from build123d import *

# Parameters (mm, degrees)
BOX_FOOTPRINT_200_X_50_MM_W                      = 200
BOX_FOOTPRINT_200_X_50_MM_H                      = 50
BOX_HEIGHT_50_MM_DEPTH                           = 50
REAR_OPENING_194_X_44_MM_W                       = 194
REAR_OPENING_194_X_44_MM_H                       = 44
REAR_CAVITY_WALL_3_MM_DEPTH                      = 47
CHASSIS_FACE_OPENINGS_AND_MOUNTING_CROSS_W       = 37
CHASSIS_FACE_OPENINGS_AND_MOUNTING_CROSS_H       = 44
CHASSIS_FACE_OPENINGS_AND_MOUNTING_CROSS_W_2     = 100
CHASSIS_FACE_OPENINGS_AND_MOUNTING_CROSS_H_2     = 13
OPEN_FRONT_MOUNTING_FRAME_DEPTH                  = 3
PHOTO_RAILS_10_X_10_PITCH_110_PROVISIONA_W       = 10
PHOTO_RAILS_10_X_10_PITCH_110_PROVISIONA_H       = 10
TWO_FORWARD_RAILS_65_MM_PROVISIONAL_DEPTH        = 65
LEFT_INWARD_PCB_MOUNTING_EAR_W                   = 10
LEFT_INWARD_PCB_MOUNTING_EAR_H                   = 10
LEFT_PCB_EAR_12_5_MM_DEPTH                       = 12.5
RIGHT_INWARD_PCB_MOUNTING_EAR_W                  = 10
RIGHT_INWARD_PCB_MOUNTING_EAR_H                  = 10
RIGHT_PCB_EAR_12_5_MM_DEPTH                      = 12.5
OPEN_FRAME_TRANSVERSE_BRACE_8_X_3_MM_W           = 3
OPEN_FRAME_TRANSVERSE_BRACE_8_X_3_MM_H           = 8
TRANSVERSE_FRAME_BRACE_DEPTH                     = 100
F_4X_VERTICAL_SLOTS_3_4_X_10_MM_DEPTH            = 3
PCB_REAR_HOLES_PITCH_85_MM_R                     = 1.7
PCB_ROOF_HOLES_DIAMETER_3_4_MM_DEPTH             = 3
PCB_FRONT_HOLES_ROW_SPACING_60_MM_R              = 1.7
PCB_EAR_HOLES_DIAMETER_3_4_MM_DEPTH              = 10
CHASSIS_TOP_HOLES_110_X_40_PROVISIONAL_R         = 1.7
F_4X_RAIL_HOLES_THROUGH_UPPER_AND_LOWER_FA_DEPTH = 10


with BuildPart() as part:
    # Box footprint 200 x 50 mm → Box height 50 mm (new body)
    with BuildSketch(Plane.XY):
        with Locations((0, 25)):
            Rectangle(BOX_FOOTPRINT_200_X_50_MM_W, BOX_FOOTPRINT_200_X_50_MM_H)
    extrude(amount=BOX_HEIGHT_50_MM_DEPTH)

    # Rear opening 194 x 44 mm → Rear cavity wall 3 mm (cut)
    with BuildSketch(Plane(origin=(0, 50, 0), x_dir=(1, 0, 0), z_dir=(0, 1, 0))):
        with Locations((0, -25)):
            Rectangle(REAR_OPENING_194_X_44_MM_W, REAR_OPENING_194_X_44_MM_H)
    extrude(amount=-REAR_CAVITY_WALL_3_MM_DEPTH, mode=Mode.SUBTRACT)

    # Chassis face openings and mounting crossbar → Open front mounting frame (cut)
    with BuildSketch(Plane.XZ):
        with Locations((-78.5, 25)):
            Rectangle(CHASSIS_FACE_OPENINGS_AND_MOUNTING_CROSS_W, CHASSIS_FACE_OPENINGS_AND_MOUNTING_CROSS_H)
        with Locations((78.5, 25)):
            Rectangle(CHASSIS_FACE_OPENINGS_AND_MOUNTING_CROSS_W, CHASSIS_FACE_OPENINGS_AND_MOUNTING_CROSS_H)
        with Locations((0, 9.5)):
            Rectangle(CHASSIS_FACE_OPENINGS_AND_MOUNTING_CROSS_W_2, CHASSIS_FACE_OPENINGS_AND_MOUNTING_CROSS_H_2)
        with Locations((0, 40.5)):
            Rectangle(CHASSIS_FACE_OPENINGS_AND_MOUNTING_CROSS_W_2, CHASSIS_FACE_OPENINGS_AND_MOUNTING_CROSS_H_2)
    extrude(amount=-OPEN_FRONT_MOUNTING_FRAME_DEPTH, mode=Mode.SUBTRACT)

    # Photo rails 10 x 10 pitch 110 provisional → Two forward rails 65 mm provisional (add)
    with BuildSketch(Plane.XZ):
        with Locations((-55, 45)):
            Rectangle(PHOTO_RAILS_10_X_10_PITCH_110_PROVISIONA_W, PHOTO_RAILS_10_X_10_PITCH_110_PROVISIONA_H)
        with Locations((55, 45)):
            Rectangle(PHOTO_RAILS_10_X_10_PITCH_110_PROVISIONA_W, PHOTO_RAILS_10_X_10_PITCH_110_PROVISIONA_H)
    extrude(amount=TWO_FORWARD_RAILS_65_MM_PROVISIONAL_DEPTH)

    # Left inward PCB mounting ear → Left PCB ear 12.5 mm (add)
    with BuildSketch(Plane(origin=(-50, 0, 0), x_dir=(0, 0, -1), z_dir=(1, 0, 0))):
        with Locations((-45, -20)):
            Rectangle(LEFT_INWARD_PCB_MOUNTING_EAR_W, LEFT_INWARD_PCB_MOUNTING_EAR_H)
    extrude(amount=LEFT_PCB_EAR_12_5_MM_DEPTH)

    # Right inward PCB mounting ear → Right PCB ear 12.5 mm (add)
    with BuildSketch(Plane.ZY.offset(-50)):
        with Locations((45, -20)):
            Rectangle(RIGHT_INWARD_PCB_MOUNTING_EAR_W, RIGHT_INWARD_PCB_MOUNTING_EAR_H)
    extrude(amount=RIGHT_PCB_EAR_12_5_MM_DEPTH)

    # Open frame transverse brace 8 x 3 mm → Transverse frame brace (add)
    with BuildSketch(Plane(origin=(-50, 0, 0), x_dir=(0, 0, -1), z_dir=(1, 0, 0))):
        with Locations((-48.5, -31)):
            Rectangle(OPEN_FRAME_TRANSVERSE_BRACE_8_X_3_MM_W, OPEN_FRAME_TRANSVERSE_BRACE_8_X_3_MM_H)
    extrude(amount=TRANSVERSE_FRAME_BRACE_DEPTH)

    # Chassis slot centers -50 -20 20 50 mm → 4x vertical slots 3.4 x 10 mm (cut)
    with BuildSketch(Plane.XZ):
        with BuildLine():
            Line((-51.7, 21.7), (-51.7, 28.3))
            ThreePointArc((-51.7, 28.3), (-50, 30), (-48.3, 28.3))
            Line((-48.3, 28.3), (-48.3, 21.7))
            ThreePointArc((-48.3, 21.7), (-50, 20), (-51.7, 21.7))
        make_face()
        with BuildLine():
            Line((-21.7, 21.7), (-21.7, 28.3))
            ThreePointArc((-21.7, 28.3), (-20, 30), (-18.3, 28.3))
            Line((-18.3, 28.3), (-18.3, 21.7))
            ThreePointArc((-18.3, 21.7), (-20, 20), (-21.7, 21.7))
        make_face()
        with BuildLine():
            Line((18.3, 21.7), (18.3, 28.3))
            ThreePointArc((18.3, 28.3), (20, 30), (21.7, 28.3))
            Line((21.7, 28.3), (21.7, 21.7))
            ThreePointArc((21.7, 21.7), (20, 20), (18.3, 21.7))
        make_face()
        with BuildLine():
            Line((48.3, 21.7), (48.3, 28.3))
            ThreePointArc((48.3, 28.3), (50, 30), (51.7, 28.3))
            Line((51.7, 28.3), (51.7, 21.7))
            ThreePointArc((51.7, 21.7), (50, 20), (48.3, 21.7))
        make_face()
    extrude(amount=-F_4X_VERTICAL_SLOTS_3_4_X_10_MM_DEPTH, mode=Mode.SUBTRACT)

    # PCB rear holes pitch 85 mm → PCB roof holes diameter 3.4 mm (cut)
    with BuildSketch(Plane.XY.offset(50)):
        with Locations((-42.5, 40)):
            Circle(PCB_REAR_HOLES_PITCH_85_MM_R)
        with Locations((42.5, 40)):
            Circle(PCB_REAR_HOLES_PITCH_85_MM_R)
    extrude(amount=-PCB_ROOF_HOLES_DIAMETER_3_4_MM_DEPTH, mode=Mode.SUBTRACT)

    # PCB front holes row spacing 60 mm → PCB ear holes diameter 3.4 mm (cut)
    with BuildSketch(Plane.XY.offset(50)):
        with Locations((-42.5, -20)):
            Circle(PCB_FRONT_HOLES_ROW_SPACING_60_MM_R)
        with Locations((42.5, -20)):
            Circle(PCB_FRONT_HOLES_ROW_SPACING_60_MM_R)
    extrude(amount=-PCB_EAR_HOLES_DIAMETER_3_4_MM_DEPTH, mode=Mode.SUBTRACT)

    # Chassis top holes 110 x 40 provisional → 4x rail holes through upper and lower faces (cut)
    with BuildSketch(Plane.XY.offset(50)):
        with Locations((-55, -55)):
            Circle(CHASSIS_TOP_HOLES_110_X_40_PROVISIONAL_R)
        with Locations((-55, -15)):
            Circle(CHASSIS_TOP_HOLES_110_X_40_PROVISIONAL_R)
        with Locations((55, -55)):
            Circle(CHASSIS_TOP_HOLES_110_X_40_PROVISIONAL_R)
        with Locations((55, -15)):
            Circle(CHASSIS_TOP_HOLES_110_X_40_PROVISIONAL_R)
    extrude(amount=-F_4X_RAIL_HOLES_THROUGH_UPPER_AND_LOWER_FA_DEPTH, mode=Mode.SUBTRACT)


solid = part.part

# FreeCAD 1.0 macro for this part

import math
import FreeCAD as App
import Part
import Sketcher

V = App.Vector
Q = App.Units.Quantity


def add_polygon(sketch, points):
    """Adds a closed chain of lines whose ends are joined by coincident constraints."""
    first, n = sketch.GeometryCount, len(points)
    for a, b in zip(points, points[1:] + points[:1]):
        sketch.addGeometry(Part.LineSegment(App.Vector(*a, 0), App.Vector(*b, 0)), False)
    for i in range(n):
        sketch.addConstraint(Sketcher.Constraint("Coincident", first + i, 2, first + (i + 1) % n, 1))

doc = App.newDocument("Part")
body = doc.addObject("PartDesign::Body", "Body")

sketch1 = body.newObject("Sketcher::SketchObject", "Sketch")
sketch1.AttachmentSupport = (doc.getObject("XY_Plane"), [""])
sketch1.MapMode = "FlatFace"
add_polygon(sketch1, [(-100, 50), (-100, 0), (100, 0), (100, 50)])
sketch1.addConstraint(Sketcher.Constraint("Vertical", 0))
sketch1.addConstraint(Sketcher.Constraint("Horizontal", 1))
sketch1.addConstraint(Sketcher.Constraint("Vertical", 2))
sketch1.addConstraint(Sketcher.Constraint("Horizontal", 3))
sketch1.addConstraint(Sketcher.Constraint("Symmetric", 0, 2, 1, 2, -1, 1))
sketch1.addConstraint(Sketcher.Constraint("DistanceX", 1, 1, 1, 2, Q("200 mm")))
sketch1.addConstraint(Sketcher.Constraint("DistanceY", 0, 2, 0, 1, Q("50 mm")))
pad1 = body.newObject("PartDesign::Pad", "Pad")
pad1.Profile = sketch1
pad1.Length = 50

sketch2 = body.newObject("Sketcher::SketchObject", "Sketch001")
sketch2.AttachmentSupport = (doc.getObject("XZ_Plane"), [""])
sketch2.MapMode = "FlatFace"
sketch2.AttachmentOffset = App.Placement(V(0, 0, -50), App.Rotation())
add_polygon(sketch2, [(-97, 3), (-97, 47), (97, 47), (97, 3)])
sketch2.addConstraint(Sketcher.Constraint("Vertical", 0))
sketch2.addConstraint(Sketcher.Constraint("Horizontal", 1))
sketch2.addConstraint(Sketcher.Constraint("Vertical", 2))
sketch2.addConstraint(Sketcher.Constraint("Horizontal", 3))
sketch2.addConstraint(Sketcher.Constraint("DistanceX", 1, 1, 1, 2, Q("194 mm")))
sketch2.addConstraint(Sketcher.Constraint("DistanceY", 0, 1, 0, 2, Q("44 mm")))
sketch2.addConstraint(Sketcher.Constraint("DistanceX", 0, 2, -1, 1, Q("97 mm")))
sketch2.addConstraint(Sketcher.Constraint("DistanceY", -1, 1, 0, 2, Q("47 mm")))
pocket1 = body.newObject("PartDesign::Pocket", "Pocket")
pocket1.Profile = sketch2
pocket1.Length = 47
pocket1.Reversed = True

sketch3 = body.newObject("Sketcher::SketchObject", "Sketch002")
sketch3.AttachmentSupport = (doc.getObject("XZ_Plane"), [""])
sketch3.MapMode = "FlatFace"
add_polygon(sketch3, [(-97, 47), (-97, 3), (-60, 3), (-60, 47)])
add_polygon(sketch3, [(60, 47), (60, 3), (97, 3), (97, 47)])
add_polygon(sketch3, [(-50, 16), (-50, 3), (50, 3), (50, 16)])
add_polygon(sketch3, [(-50, 47), (-50, 34), (50, 34), (50, 47)])
sketch3.addConstraint(Sketcher.Constraint("Vertical", 0))
sketch3.addConstraint(Sketcher.Constraint("Horizontal", 1))
sketch3.addConstraint(Sketcher.Constraint("Vertical", 2))
sketch3.addConstraint(Sketcher.Constraint("Horizontal", 3))
sketch3.addConstraint(Sketcher.Constraint("Vertical", 4))
sketch3.addConstraint(Sketcher.Constraint("Horizontal", 5))
sketch3.addConstraint(Sketcher.Constraint("Vertical", 6))
sketch3.addConstraint(Sketcher.Constraint("Horizontal", 7))
sketch3.addConstraint(Sketcher.Constraint("Vertical", 8))
sketch3.addConstraint(Sketcher.Constraint("Horizontal", 9))
sketch3.addConstraint(Sketcher.Constraint("Vertical", 10))
sketch3.addConstraint(Sketcher.Constraint("Horizontal", 11))
sketch3.addConstraint(Sketcher.Constraint("Vertical", 12))
sketch3.addConstraint(Sketcher.Constraint("Horizontal", 13))
sketch3.addConstraint(Sketcher.Constraint("Vertical", 14))
sketch3.addConstraint(Sketcher.Constraint("Horizontal", 15))
sketch3.addConstraint(Sketcher.Constraint("Symmetric", 1, 2, 4, 2, -2))
sketch3.addConstraint(Sketcher.Constraint("Symmetric", 3, 2, 6, 2, -2))
sketch3.addConstraint(Sketcher.Constraint("Horizontal", 5, 2, 8, 2))
sketch3.addConstraint(Sketcher.Constraint("Horizontal", 7, 2, 14, 2))
sketch3.addConstraint(Sketcher.Constraint("Vertical", 11, 2, 12, 2))
sketch3.addConstraint(Sketcher.Constraint("Vertical", 10, 2, 13, 2))
sketch3.addConstraint(Sketcher.Constraint("Equal", 10, 12))
sketch3.addConstraint(Sketcher.Constraint("DistanceX", 1, 1, 1, 2, Q("37 mm")))
sketch3.addConstraint(Sketcher.Constraint("DistanceX", 9, 1, 9, 2, Q("100 mm")))
sketch3.addConstraint(Sketcher.Constraint("DistanceY", 0, 2, 0, 1, Q("44 mm")))
sketch3.addConstraint(Sketcher.Constraint("DistanceY", 8, 2, 8, 1, Q("13 mm")))
sketch3.addConstraint(Sketcher.Constraint("DistanceX", 0, 2, -1, 1, Q("97 mm")))
sketch3.addConstraint(Sketcher.Constraint("DistanceY", -1, 1, 0, 2, Q("3 mm")))
sketch3.addConstraint(Sketcher.Constraint("DistanceX", 8, 2, -1, 1, Q("50 mm")))
pocket2 = body.newObject("PartDesign::Pocket", "Pocket001")
pocket2.Profile = sketch3
pocket2.Length = 3

sketch4 = body.newObject("Sketcher::SketchObject", "Sketch003")
sketch4.AttachmentSupport = (doc.getObject("XZ_Plane"), [""])
sketch4.MapMode = "FlatFace"
add_polygon(sketch4, [(-60, 50), (-60, 40), (-50, 40), (-50, 50)])
add_polygon(sketch4, [(50, 50), (50, 40), (60, 40), (60, 50)])
sketch4.addConstraint(Sketcher.Constraint("Vertical", 0))
sketch4.addConstraint(Sketcher.Constraint("Horizontal", 1))
sketch4.addConstraint(Sketcher.Constraint("Vertical", 2))
sketch4.addConstraint(Sketcher.Constraint("Horizontal", 3))
sketch4.addConstraint(Sketcher.Constraint("Vertical", 4))
sketch4.addConstraint(Sketcher.Constraint("Horizontal", 5))
sketch4.addConstraint(Sketcher.Constraint("Vertical", 6))
sketch4.addConstraint(Sketcher.Constraint("Horizontal", 7))
sketch4.addConstraint(Sketcher.Constraint("Symmetric", 1, 2, 4, 2, -2))
sketch4.addConstraint(Sketcher.Constraint("Symmetric", 3, 2, 6, 2, -2))
sketch4.addConstraint(Sketcher.Constraint("Equal", 7, 0))
sketch4.addConstraint(Sketcher.Constraint("DistanceX", 1, 1, 1, 2, Q("10 mm")))
sketch4.addConstraint(Sketcher.Constraint("DistanceX", 0, 2, -1, 1, Q("60 mm")))
sketch4.addConstraint(Sketcher.Constraint("DistanceY", -1, 1, 0, 2, Q("40 mm")))
pad2 = body.newObject("PartDesign::Pad", "Pad001")
pad2.Profile = sketch4
pad2.Length = 65

sketch5 = body.newObject("Sketcher::SketchObject", "Sketch004")
sketch5.AttachmentSupport = (doc.getObject("YZ_Plane"), [""])
sketch5.MapMode = "FlatFace"
sketch5.AttachmentOffset = App.Placement(V(0, 0, -50), App.Rotation())
add_polygon(sketch5, [(-15, 50), (-25, 50), (-25, 40), (-15, 40)])
sketch5.addConstraint(Sketcher.Constraint("Horizontal", 0))
sketch5.addConstraint(Sketcher.Constraint("Vertical", 1))
sketch5.addConstraint(Sketcher.Constraint("Horizontal", 2))
sketch5.addConstraint(Sketcher.Constraint("Vertical", 3))
sketch5.addConstraint(Sketcher.Constraint("Equal", 2, 1))
sketch5.addConstraint(Sketcher.Constraint("DistanceX", 0, 2, 0, 1, Q("10 mm")))
sketch5.addConstraint(Sketcher.Constraint("DistanceX", 0, 2, -1, 1, Q("25 mm")))
sketch5.addConstraint(Sketcher.Constraint("DistanceY", -1, 1, 0, 2, Q("50 mm")))
pad3 = body.newObject("PartDesign::Pad", "Pad002")
pad3.Profile = sketch5
pad3.Length = 12.5

sketch6 = body.newObject("Sketcher::SketchObject", "Sketch005")
sketch6.AttachmentSupport = (doc.getObject("YZ_Plane"), [""])
sketch6.MapMode = "FlatFace"
sketch6.AttachmentOffset = App.Placement(V(0, 0, 50), App.Rotation())
add_polygon(sketch6, [(-15, 40), (-25, 40), (-25, 50), (-15, 50)])
sketch6.addConstraint(Sketcher.Constraint("Horizontal", 0))
sketch6.addConstraint(Sketcher.Constraint("Vertical", 1))
sketch6.addConstraint(Sketcher.Constraint("Horizontal", 2))
sketch6.addConstraint(Sketcher.Constraint("Vertical", 3))
sketch6.addConstraint(Sketcher.Constraint("Equal", 2, 1))
sketch6.addConstraint(Sketcher.Constraint("DistanceX", 0, 2, 0, 1, Q("10 mm")))
sketch6.addConstraint(Sketcher.Constraint("DistanceX", 0, 2, -1, 1, Q("25 mm")))
sketch6.addConstraint(Sketcher.Constraint("DistanceY", -1, 1, 0, 2, Q("40 mm")))
pad4 = body.newObject("PartDesign::Pad", "Pad003")
pad4.Profile = sketch6
pad4.Length = 12.5
pad4.Reversed = True

sketch7 = body.newObject("Sketcher::SketchObject", "Sketch006")
sketch7.AttachmentSupport = (doc.getObject("YZ_Plane"), [""])
sketch7.MapMode = "FlatFace"
sketch7.AttachmentOffset = App.Placement(V(0, 0, -50), App.Rotation())
add_polygon(sketch7, [(-27, 50), (-35, 50), (-35, 47), (-27, 47)])
sketch7.addConstraint(Sketcher.Constraint("Horizontal", 0))
sketch7.addConstraint(Sketcher.Constraint("Vertical", 1))
sketch7.addConstraint(Sketcher.Constraint("Horizontal", 2))
sketch7.addConstraint(Sketcher.Constraint("Vertical", 3))
sketch7.addConstraint(Sketcher.Constraint("DistanceX", 0, 2, 0, 1, Q("8 mm")))
sketch7.addConstraint(Sketcher.Constraint("DistanceY", 1, 2, 1, 1, Q("3 mm")))
sketch7.addConstraint(Sketcher.Constraint("DistanceX", 0, 2, -1, 1, Q("35 mm")))
sketch7.addConstraint(Sketcher.Constraint("DistanceY", -1, 1, 0, 2, Q("50 mm")))
pad5 = body.newObject("PartDesign::Pad", "Pad004")
pad5.Profile = sketch7
pad5.Length = 100

sketch8 = body.newObject("Sketcher::SketchObject", "Sketch007")
sketch8.AttachmentSupport = (doc.getObject("XZ_Plane"), [""])
sketch8.MapMode = "FlatFace"
sketch8.addGeometry(Part.LineSegment(V(-51.7, 28.3, 0), V(-51.7, 21.7, 0)), False)
sketch8.addGeometry(Part.ArcOfCircle(Part.Circle(V(-50, 21.7, 0), V(0, 0, 1), 1.7), math.radians(180), math.radians(360)), False)
sketch8.addGeometry(Part.LineSegment(V(-48.3, 21.7, 0), V(-48.3, 28.3, 0)), False)
sketch8.addGeometry(Part.ArcOfCircle(Part.Circle(V(-50, 28.3, 0), V(0, 0, 1), 1.7), math.radians(0), math.radians(180)), False)
sketch8.addGeometry(Part.LineSegment(V(-21.7, 28.3, 0), V(-21.7, 21.7, 0)), False)
sketch8.addGeometry(Part.ArcOfCircle(Part.Circle(V(-20, 21.7, 0), V(0, 0, 1), 1.7), math.radians(180), math.radians(360)), False)
sketch8.addGeometry(Part.LineSegment(V(-18.3, 21.7, 0), V(-18.3, 28.3, 0)), False)
sketch8.addGeometry(Part.ArcOfCircle(Part.Circle(V(-20, 28.3, 0), V(0, 0, 1), 1.7), math.radians(0), math.radians(180)), False)
sketch8.addGeometry(Part.LineSegment(V(18.3, 28.3, 0), V(18.3, 21.7, 0)), False)
sketch8.addGeometry(Part.ArcOfCircle(Part.Circle(V(20, 21.7, 0), V(0, 0, 1), 1.7), math.radians(180), math.radians(360)), False)
sketch8.addGeometry(Part.LineSegment(V(21.7, 21.7, 0), V(21.7, 28.3, 0)), False)
sketch8.addGeometry(Part.ArcOfCircle(Part.Circle(V(20, 28.3, 0), V(0, 0, 1), 1.7), math.radians(0), math.radians(180)), False)
sketch8.addGeometry(Part.LineSegment(V(48.3, 28.3, 0), V(48.3, 21.7, 0)), False)
sketch8.addGeometry(Part.ArcOfCircle(Part.Circle(V(50, 21.7, 0), V(0, 0, 1), 1.7), math.radians(180), math.radians(360)), False)
sketch8.addGeometry(Part.LineSegment(V(51.7, 21.7, 0), V(51.7, 28.3, 0)), False)
sketch8.addGeometry(Part.ArcOfCircle(Part.Circle(V(50, 28.3, 0), V(0, 0, 1), 1.7), math.radians(0), math.radians(180)), False)
sketch8.addConstraint(Sketcher.Constraint("Tangent", 0, 2, 1, 1))
sketch8.addConstraint(Sketcher.Constraint("Tangent", 1, 2, 2, 1))
sketch8.addConstraint(Sketcher.Constraint("Tangent", 2, 2, 3, 1))
sketch8.addConstraint(Sketcher.Constraint("Tangent", 3, 2, 0, 1))
sketch8.addConstraint(Sketcher.Constraint("Tangent", 4, 2, 5, 1))
sketch8.addConstraint(Sketcher.Constraint("Tangent", 5, 2, 6, 1))
sketch8.addConstraint(Sketcher.Constraint("Tangent", 6, 2, 7, 1))
sketch8.addConstraint(Sketcher.Constraint("Tangent", 7, 2, 4, 1))
sketch8.addConstraint(Sketcher.Constraint("Tangent", 8, 2, 9, 1))
sketch8.addConstraint(Sketcher.Constraint("Tangent", 9, 2, 10, 1))
sketch8.addConstraint(Sketcher.Constraint("Tangent", 10, 2, 11, 1))
sketch8.addConstraint(Sketcher.Constraint("Tangent", 11, 2, 8, 1))
sketch8.addConstraint(Sketcher.Constraint("Tangent", 12, 2, 13, 1))
sketch8.addConstraint(Sketcher.Constraint("Tangent", 13, 2, 14, 1))
sketch8.addConstraint(Sketcher.Constraint("Tangent", 14, 2, 15, 1))
sketch8.addConstraint(Sketcher.Constraint("Tangent", 15, 2, 12, 1))
sketch8.addConstraint(Sketcher.Constraint("Vertical", 0))
sketch8.addConstraint(Sketcher.Constraint("Vertical", 2))
sketch8.addConstraint(Sketcher.Constraint("Vertical", 4))
sketch8.addConstraint(Sketcher.Constraint("Vertical", 6))
sketch8.addConstraint(Sketcher.Constraint("Vertical", 8))
sketch8.addConstraint(Sketcher.Constraint("Vertical", 10))
sketch8.addConstraint(Sketcher.Constraint("Vertical", 12))
sketch8.addConstraint(Sketcher.Constraint("Vertical", 14))
sketch8.addConstraint(Sketcher.Constraint("Equal", 3, 5))
sketch8.addConstraint(Sketcher.Constraint("Equal", 7, 9))
sketch8.addConstraint(Sketcher.Constraint("Equal", 11, 13))
sketch8.addConstraint(Sketcher.Constraint("Symmetric", 5, 3, 9, 3, -2))
sketch8.addConstraint(Sketcher.Constraint("Symmetric", 1, 3, 13, 3, -2))
sketch8.addConstraint(Sketcher.Constraint("Horizontal", 1, 3, 5, 3))
sketch8.addConstraint(Sketcher.Constraint("Horizontal", 3, 3, 7, 3))
sketch8.addConstraint(Sketcher.Constraint("Horizontal", 7, 3, 11, 3))
sketch8.addConstraint(Sketcher.Constraint("Horizontal", 11, 3, 15, 3))
sketch8.addConstraint(Sketcher.Constraint("Radius", 1, Q("1.7 mm")))
sketch8.addConstraint(Sketcher.Constraint("DistanceY", 0, 2, 0, 1, Q("6.6 mm")))
sketch8.addConstraint(Sketcher.Constraint("DistanceX", 1, 3, -1, 1, Q("50 mm")))
sketch8.addConstraint(Sketcher.Constraint("DistanceX", 5, 3, -1, 1, Q("20 mm")))
sketch8.addConstraint(Sketcher.Constraint("DistanceY", -1, 1, 1, 3, Q("21.7 mm")))
pocket3 = body.newObject("PartDesign::Pocket", "Pocket002")
pocket3.Profile = sketch8
pocket3.Length = 3

sketch9 = body.newObject("Sketcher::SketchObject", "Sketch008")
sketch9.AttachmentSupport = (doc.getObject("XY_Plane"), [""])
sketch9.MapMode = "FlatFace"
sketch9.AttachmentOffset = App.Placement(V(0, 0, 50), App.Rotation())
sketch9.addGeometry(Part.Circle(V(-42.5, 40, 0), V(0, 0, 1), 1.7), False)
sketch9.addGeometry(Part.Circle(V(42.5, 40, 0), V(0, 0, 1), 1.7), False)
sketch9.addConstraint(Sketcher.Constraint("Equal", 0, 1))
sketch9.addConstraint(Sketcher.Constraint("Symmetric", 0, 3, 1, 3, -2))
sketch9.addConstraint(Sketcher.Constraint("Diameter", 0, Q("3.4 mm")))
sketch9.addConstraint(Sketcher.Constraint("DistanceY", -1, 1, 0, 3, Q("40 mm")))
sketch9.addConstraint(Sketcher.Constraint("DistanceX", 0, 3, 1, 3, Q("85 mm")))
pocket4 = body.newObject("PartDesign::Pocket", "Pocket003")
pocket4.Profile = sketch9
pocket4.Length = 3

sketch10 = body.newObject("Sketcher::SketchObject", "Sketch009")
sketch10.AttachmentSupport = (doc.getObject("XY_Plane"), [""])
sketch10.MapMode = "FlatFace"
sketch10.AttachmentOffset = App.Placement(V(0, 0, 50), App.Rotation())
sketch10.addGeometry(Part.Circle(V(-42.5, -20, 0), V(0, 0, 1), 1.7), False)
sketch10.addGeometry(Part.Circle(V(42.5, -20, 0), V(0, 0, 1), 1.7), False)
sketch10.addConstraint(Sketcher.Constraint("Equal", 0, 1))
sketch10.addConstraint(Sketcher.Constraint("Symmetric", 0, 3, 1, 3, -2))
sketch10.addConstraint(Sketcher.Constraint("Diameter", 0, Q("3.4 mm")))
sketch10.addConstraint(Sketcher.Constraint("DistanceY", 0, 3, -1, 1, Q("20 mm")))
sketch10.addConstraint(Sketcher.Constraint("DistanceX", 0, 3, 1, 3, Q("85 mm")))
pocket5 = body.newObject("PartDesign::Pocket", "Pocket004")
pocket5.Profile = sketch10
pocket5.Length = 10

sketch11 = body.newObject("Sketcher::SketchObject", "Sketch010")
sketch11.AttachmentSupport = (doc.getObject("XY_Plane"), [""])
sketch11.MapMode = "FlatFace"
sketch11.AttachmentOffset = App.Placement(V(0, 0, 50), App.Rotation())
sketch11.addGeometry(Part.Circle(V(-55, -55, 0), V(0, 0, 1), 1.7), False)
sketch11.addGeometry(Part.Circle(V(-55, -15, 0), V(0, 0, 1), 1.7), False)
sketch11.addGeometry(Part.Circle(V(55, -55, 0), V(0, 0, 1), 1.7), False)
sketch11.addGeometry(Part.Circle(V(55, -15, 0), V(0, 0, 1), 1.7), False)
sketch11.addConstraint(Sketcher.Constraint("Equal", 0, 1))
sketch11.addConstraint(Sketcher.Constraint("Equal", 1, 2))
sketch11.addConstraint(Sketcher.Constraint("Equal", 2, 3))
sketch11.addConstraint(Sketcher.Constraint("Symmetric", 0, 3, 2, 3, -2))
sketch11.addConstraint(Sketcher.Constraint("Symmetric", 1, 3, 3, 3, -2))
sketch11.addConstraint(Sketcher.Constraint("Vertical", 0, 3, 1, 3))
sketch11.addConstraint(Sketcher.Constraint("Diameter", 0, Q("3.4 mm")))
sketch11.addConstraint(Sketcher.Constraint("DistanceX", 0, 3, -1, 1, Q("55 mm")))
sketch11.addConstraint(Sketcher.Constraint("DistanceY", 0, 3, -1, 1, Q("55 mm")))
sketch11.addConstraint(Sketcher.Constraint("DistanceY", 1, 3, -1, 1, Q("15 mm")))
pocket6 = body.newObject("PartDesign::Pocket", "Pocket005")
pocket6.Profile = sketch11
pocket6.Length = 10

doc.recompute()
